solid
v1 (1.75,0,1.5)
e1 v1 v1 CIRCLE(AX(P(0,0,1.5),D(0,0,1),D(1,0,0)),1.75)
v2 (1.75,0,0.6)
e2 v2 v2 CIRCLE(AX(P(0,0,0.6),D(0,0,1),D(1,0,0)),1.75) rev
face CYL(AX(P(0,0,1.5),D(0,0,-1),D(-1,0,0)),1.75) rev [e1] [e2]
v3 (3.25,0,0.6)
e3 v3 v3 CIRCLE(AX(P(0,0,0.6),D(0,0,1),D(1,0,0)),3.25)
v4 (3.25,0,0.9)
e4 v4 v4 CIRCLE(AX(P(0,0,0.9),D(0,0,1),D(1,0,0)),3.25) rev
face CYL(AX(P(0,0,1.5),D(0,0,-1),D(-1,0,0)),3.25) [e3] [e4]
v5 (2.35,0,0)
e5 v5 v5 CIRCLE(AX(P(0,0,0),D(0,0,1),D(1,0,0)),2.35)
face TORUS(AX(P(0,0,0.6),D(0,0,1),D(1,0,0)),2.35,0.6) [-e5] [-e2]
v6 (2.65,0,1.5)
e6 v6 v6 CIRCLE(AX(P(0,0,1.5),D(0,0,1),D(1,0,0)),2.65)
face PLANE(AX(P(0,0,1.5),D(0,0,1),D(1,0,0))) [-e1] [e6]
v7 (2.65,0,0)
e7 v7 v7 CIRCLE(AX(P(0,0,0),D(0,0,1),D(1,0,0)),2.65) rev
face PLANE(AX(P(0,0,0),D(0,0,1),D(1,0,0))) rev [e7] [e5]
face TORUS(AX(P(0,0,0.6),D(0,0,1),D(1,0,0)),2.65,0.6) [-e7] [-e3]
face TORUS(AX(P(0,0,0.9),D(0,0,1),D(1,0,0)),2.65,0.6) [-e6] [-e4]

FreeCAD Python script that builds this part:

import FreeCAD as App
import Part
import Sketcher
Q = App.Units.Quantity


def edges_at(feature, points):
    """Names of the edges that pass closest to the given points."""
    edges = feature.Shape.Edges
    near = lambda p: min(range(len(edges)), key=lambda i: edges[i].distToShape(Part.Vertex(*p))[0])
    return sorted({f"Edge{near(p) + 1}" for p in points})

doc = App.newDocument("Part")
body = doc.addObject("PartDesign::Body", "Body")

sketch1 = body.newObject("Sketcher::SketchObject", "Sketch")
sketch1.AttachmentSupport = (doc.getObject("XY_Plane"), [""])
sketch1.MapMode = "FlatFace"
sketch1.addGeometry([
    Part.Circle(App.Vector(0, 0, 0), App.Vector(0, 0, 1), 3.2),
    Part.Circle(App.Vector(0, 0, 0), App.Vector(0, 0, 1), 1.8),
], False)
sketch1.addConstraint([
    Sketcher.Constraint("Coincident", 0, 3, -1, 1),
    Sketcher.Constraint("Coincident", 1, 3, -1, 1),
    Sketcher.Constraint("Diameter", 0, Q("6.5 mm")),
    Sketcher.Constraint("Diameter", 1, Q("3.5 mm")),
])
pad1 = body.newObject("PartDesign::Pad", "Pad")
pad1.Profile = sketch1
pad1.Length = 1.5
doc.recompute()

fillet = body.newObject("PartDesign::Fillet", "Fillet")
fillet.Base = (pad1, edges_at(pad1, [(-3.25, 0, 0), (-3.25, 0, 1.5), (-1.75, 0, 0)]))
fillet.Radius = 0.6

doc.recompute()
